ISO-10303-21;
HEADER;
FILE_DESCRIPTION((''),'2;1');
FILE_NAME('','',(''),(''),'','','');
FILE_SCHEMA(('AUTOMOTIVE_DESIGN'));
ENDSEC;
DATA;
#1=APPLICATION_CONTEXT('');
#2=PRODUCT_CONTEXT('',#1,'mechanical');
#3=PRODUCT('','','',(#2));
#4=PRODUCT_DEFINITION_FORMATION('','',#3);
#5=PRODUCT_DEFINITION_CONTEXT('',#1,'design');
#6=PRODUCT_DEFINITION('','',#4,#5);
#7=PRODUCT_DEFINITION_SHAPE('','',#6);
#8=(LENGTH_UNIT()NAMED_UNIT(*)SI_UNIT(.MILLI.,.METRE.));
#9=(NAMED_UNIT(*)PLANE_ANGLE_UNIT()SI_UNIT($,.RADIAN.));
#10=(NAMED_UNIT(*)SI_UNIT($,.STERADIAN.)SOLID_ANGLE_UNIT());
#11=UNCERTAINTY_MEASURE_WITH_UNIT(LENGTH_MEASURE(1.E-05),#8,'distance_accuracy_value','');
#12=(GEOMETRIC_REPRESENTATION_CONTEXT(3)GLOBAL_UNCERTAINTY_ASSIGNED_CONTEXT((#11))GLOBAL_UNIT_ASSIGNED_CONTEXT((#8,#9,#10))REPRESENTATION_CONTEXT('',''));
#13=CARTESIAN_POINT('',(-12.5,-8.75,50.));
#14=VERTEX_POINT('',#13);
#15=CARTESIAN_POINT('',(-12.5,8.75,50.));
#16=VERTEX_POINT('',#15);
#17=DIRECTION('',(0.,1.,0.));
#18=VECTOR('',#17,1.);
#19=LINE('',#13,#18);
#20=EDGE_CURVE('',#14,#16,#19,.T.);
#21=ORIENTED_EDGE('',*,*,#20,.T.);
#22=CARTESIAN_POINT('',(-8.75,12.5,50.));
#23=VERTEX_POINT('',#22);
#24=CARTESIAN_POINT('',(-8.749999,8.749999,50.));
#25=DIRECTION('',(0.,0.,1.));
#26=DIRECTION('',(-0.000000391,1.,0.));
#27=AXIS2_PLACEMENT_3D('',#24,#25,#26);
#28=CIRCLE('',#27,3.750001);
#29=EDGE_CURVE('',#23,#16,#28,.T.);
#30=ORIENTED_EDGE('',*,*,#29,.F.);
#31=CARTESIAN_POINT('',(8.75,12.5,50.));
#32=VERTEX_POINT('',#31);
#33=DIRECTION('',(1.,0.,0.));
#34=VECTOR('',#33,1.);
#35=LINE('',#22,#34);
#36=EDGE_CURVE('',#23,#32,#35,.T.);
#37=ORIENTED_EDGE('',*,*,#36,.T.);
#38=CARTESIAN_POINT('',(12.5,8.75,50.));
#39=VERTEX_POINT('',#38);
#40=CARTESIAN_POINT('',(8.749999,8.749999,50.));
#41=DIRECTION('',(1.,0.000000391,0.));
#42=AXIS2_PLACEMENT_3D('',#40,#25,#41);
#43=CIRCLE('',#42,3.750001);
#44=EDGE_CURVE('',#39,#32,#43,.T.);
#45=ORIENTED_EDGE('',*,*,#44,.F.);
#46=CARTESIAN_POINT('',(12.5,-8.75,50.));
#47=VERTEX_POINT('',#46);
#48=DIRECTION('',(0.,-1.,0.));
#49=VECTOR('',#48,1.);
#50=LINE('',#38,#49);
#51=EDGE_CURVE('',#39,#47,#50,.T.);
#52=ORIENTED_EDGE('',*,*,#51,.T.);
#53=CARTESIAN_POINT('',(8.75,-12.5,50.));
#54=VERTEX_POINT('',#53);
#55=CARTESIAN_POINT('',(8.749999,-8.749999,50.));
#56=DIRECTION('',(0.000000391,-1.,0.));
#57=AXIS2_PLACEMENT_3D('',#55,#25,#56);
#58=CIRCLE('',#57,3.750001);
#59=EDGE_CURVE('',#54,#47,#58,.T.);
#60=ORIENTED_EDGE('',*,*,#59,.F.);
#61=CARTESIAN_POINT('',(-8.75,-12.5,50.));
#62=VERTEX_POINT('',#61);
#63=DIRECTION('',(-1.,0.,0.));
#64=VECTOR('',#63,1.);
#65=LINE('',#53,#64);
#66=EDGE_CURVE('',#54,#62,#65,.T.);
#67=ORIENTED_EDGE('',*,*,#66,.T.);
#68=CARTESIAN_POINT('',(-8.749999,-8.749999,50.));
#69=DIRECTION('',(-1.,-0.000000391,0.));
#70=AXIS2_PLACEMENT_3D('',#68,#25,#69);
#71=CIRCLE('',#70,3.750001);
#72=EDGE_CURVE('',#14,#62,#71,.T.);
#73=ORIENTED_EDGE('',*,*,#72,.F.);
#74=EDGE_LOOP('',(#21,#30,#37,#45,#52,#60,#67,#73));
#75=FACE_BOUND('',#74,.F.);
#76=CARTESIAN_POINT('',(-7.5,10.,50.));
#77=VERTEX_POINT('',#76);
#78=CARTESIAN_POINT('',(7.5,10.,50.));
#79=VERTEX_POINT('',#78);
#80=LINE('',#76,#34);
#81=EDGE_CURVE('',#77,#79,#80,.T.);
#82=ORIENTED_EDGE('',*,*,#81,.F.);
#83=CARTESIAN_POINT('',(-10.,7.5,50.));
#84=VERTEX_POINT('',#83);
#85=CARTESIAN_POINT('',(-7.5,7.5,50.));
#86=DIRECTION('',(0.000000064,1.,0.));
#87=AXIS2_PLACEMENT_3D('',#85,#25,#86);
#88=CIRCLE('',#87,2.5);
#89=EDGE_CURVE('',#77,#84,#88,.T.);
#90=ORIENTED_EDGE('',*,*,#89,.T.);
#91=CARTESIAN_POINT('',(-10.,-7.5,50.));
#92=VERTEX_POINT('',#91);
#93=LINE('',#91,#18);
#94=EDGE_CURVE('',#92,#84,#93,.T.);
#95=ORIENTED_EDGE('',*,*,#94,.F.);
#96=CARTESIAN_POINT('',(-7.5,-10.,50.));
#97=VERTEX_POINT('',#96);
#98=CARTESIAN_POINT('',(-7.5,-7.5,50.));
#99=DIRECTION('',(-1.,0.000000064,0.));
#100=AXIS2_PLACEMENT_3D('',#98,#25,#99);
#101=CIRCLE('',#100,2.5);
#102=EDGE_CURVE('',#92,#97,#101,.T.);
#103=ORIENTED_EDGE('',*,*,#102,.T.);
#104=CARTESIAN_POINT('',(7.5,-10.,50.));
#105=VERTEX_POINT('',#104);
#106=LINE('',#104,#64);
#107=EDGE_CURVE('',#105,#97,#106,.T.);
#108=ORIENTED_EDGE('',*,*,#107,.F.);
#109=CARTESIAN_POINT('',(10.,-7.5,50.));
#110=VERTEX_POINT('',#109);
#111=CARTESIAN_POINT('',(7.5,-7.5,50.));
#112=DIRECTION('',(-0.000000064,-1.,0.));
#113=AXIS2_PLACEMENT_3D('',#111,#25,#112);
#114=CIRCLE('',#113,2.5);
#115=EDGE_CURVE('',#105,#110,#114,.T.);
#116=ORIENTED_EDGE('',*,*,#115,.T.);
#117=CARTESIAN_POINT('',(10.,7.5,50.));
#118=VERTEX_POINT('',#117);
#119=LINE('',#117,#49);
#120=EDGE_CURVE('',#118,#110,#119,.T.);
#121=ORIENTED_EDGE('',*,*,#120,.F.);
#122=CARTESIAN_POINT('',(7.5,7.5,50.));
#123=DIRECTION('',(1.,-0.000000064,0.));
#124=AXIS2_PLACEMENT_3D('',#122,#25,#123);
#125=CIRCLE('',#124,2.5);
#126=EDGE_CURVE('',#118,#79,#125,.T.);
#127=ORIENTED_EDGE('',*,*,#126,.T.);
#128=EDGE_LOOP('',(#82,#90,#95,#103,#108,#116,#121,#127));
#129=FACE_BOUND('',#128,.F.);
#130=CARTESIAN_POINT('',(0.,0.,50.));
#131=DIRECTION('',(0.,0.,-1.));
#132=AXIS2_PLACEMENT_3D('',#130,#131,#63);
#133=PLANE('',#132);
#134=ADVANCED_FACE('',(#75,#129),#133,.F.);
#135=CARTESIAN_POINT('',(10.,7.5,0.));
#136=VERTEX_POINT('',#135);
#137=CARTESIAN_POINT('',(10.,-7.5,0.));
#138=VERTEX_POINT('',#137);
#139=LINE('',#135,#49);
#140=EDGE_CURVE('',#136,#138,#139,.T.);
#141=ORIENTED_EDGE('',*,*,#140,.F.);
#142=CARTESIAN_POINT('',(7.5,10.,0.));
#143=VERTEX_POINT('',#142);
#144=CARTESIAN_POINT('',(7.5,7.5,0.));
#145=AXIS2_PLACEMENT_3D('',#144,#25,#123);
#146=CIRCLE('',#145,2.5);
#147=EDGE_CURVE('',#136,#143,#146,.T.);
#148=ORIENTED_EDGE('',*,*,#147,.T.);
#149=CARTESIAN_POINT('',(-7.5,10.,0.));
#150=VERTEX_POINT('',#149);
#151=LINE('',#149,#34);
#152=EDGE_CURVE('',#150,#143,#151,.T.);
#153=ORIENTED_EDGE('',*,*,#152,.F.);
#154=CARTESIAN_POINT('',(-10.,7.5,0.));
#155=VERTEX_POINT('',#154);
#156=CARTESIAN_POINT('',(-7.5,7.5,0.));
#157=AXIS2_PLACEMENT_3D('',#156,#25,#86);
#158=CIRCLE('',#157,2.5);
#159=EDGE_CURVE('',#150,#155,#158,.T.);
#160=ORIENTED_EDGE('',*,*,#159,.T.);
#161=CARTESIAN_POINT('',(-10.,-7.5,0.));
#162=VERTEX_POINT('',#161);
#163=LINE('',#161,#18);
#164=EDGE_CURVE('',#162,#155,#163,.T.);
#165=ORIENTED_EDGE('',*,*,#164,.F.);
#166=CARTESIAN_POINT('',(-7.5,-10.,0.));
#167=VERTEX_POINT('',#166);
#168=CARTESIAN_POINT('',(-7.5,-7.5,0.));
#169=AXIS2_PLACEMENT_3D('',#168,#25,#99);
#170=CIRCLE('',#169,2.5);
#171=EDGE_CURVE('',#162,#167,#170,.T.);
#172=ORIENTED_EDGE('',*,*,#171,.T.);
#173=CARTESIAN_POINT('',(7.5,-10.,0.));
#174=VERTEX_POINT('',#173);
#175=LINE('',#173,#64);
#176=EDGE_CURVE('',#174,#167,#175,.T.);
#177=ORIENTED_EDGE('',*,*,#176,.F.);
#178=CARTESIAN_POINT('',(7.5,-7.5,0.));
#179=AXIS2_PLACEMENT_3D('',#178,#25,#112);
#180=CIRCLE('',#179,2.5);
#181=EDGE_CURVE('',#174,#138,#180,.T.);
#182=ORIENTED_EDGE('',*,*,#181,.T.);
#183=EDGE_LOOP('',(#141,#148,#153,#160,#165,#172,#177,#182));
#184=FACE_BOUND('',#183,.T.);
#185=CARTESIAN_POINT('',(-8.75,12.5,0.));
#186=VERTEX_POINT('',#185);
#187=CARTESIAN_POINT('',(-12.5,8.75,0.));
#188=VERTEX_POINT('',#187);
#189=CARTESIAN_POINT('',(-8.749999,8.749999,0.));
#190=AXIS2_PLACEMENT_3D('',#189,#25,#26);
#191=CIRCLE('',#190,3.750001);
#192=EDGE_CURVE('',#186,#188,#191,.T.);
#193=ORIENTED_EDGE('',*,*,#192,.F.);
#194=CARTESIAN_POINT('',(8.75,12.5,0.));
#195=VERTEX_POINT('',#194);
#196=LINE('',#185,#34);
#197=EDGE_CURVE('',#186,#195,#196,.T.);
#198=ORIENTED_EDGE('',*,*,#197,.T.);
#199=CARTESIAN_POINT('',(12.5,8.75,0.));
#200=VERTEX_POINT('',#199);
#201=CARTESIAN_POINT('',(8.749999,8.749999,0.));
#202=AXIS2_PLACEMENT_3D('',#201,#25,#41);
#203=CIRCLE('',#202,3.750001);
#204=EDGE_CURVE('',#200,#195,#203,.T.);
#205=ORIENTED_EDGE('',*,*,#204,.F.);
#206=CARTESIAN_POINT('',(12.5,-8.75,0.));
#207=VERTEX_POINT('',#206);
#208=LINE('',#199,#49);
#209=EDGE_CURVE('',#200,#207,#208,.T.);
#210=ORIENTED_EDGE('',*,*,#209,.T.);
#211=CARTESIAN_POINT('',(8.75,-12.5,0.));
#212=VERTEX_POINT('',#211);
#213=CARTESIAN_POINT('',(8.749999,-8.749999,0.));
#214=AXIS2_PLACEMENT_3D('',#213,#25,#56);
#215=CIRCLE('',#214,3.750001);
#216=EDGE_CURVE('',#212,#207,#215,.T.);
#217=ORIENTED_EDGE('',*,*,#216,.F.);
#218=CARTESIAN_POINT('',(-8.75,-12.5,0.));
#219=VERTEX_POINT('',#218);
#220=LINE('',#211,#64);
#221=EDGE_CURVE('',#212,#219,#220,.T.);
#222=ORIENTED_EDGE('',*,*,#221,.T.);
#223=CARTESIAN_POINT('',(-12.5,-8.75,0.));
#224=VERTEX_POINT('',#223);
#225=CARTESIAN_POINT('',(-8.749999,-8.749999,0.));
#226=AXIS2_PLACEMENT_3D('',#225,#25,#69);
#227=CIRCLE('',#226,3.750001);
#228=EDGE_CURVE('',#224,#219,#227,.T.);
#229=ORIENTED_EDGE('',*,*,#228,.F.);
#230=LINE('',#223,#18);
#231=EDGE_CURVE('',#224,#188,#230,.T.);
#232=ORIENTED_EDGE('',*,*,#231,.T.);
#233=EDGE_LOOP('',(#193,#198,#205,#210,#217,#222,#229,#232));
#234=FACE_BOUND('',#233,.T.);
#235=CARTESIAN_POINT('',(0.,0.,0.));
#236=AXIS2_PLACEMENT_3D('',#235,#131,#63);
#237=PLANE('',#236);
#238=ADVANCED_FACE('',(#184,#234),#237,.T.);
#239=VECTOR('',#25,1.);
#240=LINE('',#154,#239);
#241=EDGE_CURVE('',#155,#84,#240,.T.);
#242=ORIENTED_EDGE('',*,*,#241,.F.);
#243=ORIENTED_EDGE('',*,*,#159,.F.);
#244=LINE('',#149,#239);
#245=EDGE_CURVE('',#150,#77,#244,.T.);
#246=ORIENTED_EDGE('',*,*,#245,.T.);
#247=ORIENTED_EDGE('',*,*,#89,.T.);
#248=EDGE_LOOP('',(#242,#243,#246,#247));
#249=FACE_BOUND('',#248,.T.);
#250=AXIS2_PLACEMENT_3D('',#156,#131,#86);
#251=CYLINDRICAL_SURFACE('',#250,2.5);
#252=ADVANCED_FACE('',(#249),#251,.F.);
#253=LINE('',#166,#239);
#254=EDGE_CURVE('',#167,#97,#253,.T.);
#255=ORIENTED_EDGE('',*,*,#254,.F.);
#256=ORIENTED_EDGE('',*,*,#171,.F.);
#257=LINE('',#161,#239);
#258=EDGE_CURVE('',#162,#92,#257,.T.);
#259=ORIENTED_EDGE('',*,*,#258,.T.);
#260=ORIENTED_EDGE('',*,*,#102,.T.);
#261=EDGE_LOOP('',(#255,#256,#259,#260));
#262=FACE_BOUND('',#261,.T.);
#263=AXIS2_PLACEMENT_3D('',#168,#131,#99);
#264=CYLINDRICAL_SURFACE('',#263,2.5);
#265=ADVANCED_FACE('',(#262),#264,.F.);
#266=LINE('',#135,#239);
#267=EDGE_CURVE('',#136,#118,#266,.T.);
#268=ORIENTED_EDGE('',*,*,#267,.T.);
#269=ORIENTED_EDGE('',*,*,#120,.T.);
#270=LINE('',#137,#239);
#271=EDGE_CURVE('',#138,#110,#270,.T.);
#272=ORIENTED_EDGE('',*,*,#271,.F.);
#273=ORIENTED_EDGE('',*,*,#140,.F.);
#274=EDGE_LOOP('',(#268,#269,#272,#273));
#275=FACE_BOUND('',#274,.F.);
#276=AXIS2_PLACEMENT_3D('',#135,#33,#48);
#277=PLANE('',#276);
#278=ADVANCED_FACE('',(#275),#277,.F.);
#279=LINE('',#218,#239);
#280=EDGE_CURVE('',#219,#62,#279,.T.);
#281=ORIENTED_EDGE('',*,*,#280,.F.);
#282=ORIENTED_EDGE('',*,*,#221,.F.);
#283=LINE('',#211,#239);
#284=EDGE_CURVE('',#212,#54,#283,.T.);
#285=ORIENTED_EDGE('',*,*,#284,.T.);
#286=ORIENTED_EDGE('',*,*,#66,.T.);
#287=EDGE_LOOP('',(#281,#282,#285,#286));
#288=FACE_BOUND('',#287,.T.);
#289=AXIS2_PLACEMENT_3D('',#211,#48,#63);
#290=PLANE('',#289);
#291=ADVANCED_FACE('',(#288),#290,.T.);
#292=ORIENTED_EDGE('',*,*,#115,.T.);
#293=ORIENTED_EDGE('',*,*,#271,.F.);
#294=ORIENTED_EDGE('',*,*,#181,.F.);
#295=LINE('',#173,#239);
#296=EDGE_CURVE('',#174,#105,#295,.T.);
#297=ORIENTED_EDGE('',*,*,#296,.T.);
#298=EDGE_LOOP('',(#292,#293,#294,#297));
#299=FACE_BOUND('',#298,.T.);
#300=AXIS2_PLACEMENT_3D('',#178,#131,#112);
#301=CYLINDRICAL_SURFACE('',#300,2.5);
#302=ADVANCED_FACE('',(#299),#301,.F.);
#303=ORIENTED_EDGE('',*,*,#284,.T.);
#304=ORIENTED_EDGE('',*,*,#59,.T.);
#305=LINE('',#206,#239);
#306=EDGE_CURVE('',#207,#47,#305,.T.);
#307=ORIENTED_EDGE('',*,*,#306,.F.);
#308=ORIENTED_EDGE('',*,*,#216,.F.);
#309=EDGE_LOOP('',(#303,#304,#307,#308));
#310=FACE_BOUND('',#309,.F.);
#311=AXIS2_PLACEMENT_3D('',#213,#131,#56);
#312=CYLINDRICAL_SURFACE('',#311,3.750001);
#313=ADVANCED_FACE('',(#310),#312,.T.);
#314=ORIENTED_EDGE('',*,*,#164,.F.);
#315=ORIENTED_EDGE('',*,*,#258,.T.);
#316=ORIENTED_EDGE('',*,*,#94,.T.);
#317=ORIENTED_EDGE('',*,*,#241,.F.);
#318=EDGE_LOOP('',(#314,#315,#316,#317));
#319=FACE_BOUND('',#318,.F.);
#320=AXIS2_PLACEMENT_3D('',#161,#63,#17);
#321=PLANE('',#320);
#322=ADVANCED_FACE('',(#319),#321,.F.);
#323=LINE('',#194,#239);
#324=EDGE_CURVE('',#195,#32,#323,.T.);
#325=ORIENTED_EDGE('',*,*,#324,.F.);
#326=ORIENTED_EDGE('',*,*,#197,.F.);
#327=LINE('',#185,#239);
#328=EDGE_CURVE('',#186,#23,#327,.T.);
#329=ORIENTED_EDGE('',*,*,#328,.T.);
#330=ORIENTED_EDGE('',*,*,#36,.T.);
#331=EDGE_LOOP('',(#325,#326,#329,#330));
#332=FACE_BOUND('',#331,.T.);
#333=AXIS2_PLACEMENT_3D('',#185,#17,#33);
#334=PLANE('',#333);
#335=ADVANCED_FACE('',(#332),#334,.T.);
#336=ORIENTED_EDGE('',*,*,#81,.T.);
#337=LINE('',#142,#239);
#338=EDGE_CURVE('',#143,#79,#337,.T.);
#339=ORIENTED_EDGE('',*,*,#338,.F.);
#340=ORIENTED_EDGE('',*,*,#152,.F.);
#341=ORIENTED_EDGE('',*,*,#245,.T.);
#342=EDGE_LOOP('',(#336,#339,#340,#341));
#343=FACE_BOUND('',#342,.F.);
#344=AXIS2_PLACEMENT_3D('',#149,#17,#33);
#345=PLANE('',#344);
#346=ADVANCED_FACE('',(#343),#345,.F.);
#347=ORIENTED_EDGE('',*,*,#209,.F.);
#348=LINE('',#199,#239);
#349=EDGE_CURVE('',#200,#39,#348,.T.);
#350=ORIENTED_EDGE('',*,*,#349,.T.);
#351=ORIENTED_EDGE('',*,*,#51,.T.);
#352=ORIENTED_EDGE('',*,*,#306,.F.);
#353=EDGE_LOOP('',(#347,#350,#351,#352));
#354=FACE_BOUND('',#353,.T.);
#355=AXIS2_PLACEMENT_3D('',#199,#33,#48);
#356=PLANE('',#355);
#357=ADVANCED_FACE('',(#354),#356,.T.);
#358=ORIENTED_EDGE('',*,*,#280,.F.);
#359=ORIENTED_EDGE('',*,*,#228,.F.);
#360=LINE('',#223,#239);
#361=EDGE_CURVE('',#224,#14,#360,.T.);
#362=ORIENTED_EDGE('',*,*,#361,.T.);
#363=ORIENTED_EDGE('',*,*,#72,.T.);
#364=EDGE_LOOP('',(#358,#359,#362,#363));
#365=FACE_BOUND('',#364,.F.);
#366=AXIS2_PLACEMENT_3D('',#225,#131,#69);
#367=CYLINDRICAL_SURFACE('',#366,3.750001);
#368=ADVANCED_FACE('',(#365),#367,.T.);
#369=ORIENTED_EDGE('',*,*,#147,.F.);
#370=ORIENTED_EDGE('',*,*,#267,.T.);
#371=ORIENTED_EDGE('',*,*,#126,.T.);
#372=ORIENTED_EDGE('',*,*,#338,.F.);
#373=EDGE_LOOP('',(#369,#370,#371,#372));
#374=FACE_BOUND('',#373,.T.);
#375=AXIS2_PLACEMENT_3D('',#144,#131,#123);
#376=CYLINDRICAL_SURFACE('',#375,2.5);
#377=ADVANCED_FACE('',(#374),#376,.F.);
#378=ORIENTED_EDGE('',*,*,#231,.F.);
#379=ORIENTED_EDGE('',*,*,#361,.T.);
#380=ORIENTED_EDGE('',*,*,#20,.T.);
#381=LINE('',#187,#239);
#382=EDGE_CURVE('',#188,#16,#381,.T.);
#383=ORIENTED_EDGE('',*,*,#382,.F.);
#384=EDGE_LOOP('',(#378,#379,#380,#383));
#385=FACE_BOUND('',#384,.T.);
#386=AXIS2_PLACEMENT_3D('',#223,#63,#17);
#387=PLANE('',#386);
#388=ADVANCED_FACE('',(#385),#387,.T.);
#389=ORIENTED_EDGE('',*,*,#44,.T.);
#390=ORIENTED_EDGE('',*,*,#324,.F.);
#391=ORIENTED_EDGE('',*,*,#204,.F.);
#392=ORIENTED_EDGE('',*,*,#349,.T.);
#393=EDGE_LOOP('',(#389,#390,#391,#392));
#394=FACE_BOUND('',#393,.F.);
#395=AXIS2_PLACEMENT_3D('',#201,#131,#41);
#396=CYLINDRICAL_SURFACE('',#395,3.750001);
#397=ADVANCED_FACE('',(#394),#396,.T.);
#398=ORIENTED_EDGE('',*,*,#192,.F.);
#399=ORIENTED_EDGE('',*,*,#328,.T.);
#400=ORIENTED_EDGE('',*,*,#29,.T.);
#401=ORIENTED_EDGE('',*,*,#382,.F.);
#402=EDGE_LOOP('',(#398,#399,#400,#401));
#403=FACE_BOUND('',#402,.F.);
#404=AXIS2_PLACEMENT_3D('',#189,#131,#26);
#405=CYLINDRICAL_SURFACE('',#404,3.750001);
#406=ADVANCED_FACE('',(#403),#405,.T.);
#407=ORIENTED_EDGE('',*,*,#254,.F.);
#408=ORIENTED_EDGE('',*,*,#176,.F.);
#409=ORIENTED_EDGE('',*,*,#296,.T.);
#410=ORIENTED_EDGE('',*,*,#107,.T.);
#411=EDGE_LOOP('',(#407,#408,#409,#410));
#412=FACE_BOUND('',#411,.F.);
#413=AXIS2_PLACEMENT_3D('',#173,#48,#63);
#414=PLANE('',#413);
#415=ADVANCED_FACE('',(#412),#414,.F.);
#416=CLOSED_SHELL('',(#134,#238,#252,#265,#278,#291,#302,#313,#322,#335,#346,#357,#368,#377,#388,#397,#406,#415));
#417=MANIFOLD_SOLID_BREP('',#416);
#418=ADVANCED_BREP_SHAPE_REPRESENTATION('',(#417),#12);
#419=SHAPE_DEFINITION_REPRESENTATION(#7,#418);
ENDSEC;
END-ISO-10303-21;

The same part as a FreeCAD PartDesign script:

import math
import FreeCAD as App
import Part
import Sketcher

doc = App.newDocument("Part")
body = doc.addObject("PartDesign::Body", "Body")

sketch1 = doc.addObject("Sketcher::SketchObject", "Sketch")
body.addObject(sketch1)
sketch1.AttachmentSupport = (doc.XY_Plane, [""])
sketch1.MapMode = "FlatFace"
sketch1.addGeometry([
    Part.LineSegment(App.Vector(8.8, 12.5, 0), App.Vector(-8.8, 12.5, 0)),
    Part.ArcOfCircle(Part.Circle(App.Vector(-8.7, 8.7, 0), App.Vector(0, 0, 1), 3.8), math.radians(90), math.radians(180)),
    Part.LineSegment(App.Vector(-12.5, 8.8, 0), App.Vector(-12.5, -8.8, 0)),
    Part.ArcOfCircle(Part.Circle(App.Vector(-8.7, -8.7, 0), App.Vector(0, 0, 1), 3.8), math.radians(-180), math.radians(-90)),
    Part.LineSegment(App.Vector(-8.8, -12.5, 0), App.Vector(8.8, -12.5, 0)),
    Part.ArcOfCircle(Part.Circle(App.Vector(8.7, -8.7, 0), App.Vector(0, 0, 1), 3.8), math.radians(-90), math.radians(0)),
    Part.LineSegment(App.Vector(12.5, -8.8, 0), App.Vector(12.5, 8.8, 0)),
    Part.ArcOfCircle(Part.Circle(App.Vector(8.7, 8.7, 0), App.Vector(0, 0, 1), 3.8), math.radians(0), math.radians(90)),
    Part.LineSegment(App.Vector(-7.5, 10, 0), App.Vector(7.5, 10, 0)),
    Part.ArcOfCircle(Part.Circle(App.Vector(7.5, 7.5, 0), App.Vector(0, 0, 1), 2.5), math.radians(0), math.radians(90)),
    Part.LineSegment(App.Vector(10, 7.5, 0), App.Vector(10, -7.5, 0)),
    Part.ArcOfCircle(Part.Circle(App.Vector(7.5, -7.5, 0), App.Vector(0, 0, 1), 2.5), math.radians(-90), math.radians(0)),
    Part.LineSegment(App.Vector(7.5, -10, 0), App.Vector(-7.5, -10, 0)),
    Part.ArcOfCircle(Part.Circle(App.Vector(-7.5, -7.5, 0), App.Vector(0, 0, 1), 2.5), math.radians(180), math.radians(270)),
    Part.LineSegment(App.Vector(-10, -7.5, 0), App.Vector(-10, 7.5, 0)),
    Part.ArcOfCircle(Part.Circle(App.Vector(-7.5, 7.5, 0), App.Vector(0, 0, 1), 2.5), math.radians(90), math.radians(180)),
], False)
sketch1.addConstraint([
    Sketcher.Constraint("Tangent", 0, 2, 1, 1),
    Sketcher.Constraint("Tangent", 1, 2, 2, 1),
    Sketcher.Constraint("Tangent", 2, 2, 3, 1),
    Sketcher.Constraint("Tangent", 3, 2, 4, 1),
    Sketcher.Constraint("Tangent", 4, 2, 5, 1),
    Sketcher.Constraint("Tangent", 5, 2, 6, 1),
    Sketcher.Constraint("Tangent", 6, 2, 7, 1),
    Sketcher.Constraint("Tangent", 7, 2, 0, 1),
    Sketcher.Constraint("Tangent", 8, 2, 9, 2),
    Sketcher.Constraint("Tangent", 9, 1, 10, 1),
    Sketcher.Constraint("Tangent", 10, 2, 11, 2),
    Sketcher.Constraint("Tangent", 11, 1, 12, 1),
    Sketcher.Constraint("Tangent", 12, 2, 13, 2),
    Sketcher.Constraint("Tangent", 13, 1, 14, 1),
    Sketcher.Constraint("Tangent", 14, 2, 15, 2),
    Sketcher.Constraint("Tangent", 15, 1, 8, 1),
    Sketcher.Constraint("Horizontal", 0),
    Sketcher.Constraint("Vertical", 2),
    Sketcher.Constraint("Horizontal", 4),
    Sketcher.Constraint("Vertical", 6),
    Sketcher.Constraint("Horizontal", 8),
    Sketcher.Constraint("Vertical", 10),
    Sketcher.Constraint("Horizontal", 12),
    Sketcher.Constraint("Vertical", 14),
    Sketcher.Constraint("Equal", 1, 3),
    Sketcher.Constraint("Equal", 3, 5),
    Sketcher.Constraint("Equal", 5, 7),
    Sketcher.Constraint("Equal", 9, 11),
    Sketcher.Constraint("Equal", 11, 13),
    Sketcher.Constraint("Equal", 13, 15),
    Sketcher.Constraint("Symmetric", 1, 3, 5, 3, -1, 1),
    Sketcher.Constraint("Symmetric", 9, 3, 13, 3, -1, 1),
    Sketcher.Constraint("Equal", 4, 2),
    Sketcher.Constraint("Equal", 12, 10),
    Sketcher.Constraint("Radius", 9, 2.5),
    Sketcher.Constraint("DistanceX", 8, 1, 8, 2, 15.0),
    Sketcher.Constraint("Radius", 1, 3.750001),
    Sketcher.Constraint("DistanceX", 0, 2, 0, 1, 17.5),
])
pad1 = doc.addObject("PartDesign::Pad", "Pad")
body.addObject(pad1)
pad1.Profile = sketch1
pad1.Length = 50

doc.recompute()
